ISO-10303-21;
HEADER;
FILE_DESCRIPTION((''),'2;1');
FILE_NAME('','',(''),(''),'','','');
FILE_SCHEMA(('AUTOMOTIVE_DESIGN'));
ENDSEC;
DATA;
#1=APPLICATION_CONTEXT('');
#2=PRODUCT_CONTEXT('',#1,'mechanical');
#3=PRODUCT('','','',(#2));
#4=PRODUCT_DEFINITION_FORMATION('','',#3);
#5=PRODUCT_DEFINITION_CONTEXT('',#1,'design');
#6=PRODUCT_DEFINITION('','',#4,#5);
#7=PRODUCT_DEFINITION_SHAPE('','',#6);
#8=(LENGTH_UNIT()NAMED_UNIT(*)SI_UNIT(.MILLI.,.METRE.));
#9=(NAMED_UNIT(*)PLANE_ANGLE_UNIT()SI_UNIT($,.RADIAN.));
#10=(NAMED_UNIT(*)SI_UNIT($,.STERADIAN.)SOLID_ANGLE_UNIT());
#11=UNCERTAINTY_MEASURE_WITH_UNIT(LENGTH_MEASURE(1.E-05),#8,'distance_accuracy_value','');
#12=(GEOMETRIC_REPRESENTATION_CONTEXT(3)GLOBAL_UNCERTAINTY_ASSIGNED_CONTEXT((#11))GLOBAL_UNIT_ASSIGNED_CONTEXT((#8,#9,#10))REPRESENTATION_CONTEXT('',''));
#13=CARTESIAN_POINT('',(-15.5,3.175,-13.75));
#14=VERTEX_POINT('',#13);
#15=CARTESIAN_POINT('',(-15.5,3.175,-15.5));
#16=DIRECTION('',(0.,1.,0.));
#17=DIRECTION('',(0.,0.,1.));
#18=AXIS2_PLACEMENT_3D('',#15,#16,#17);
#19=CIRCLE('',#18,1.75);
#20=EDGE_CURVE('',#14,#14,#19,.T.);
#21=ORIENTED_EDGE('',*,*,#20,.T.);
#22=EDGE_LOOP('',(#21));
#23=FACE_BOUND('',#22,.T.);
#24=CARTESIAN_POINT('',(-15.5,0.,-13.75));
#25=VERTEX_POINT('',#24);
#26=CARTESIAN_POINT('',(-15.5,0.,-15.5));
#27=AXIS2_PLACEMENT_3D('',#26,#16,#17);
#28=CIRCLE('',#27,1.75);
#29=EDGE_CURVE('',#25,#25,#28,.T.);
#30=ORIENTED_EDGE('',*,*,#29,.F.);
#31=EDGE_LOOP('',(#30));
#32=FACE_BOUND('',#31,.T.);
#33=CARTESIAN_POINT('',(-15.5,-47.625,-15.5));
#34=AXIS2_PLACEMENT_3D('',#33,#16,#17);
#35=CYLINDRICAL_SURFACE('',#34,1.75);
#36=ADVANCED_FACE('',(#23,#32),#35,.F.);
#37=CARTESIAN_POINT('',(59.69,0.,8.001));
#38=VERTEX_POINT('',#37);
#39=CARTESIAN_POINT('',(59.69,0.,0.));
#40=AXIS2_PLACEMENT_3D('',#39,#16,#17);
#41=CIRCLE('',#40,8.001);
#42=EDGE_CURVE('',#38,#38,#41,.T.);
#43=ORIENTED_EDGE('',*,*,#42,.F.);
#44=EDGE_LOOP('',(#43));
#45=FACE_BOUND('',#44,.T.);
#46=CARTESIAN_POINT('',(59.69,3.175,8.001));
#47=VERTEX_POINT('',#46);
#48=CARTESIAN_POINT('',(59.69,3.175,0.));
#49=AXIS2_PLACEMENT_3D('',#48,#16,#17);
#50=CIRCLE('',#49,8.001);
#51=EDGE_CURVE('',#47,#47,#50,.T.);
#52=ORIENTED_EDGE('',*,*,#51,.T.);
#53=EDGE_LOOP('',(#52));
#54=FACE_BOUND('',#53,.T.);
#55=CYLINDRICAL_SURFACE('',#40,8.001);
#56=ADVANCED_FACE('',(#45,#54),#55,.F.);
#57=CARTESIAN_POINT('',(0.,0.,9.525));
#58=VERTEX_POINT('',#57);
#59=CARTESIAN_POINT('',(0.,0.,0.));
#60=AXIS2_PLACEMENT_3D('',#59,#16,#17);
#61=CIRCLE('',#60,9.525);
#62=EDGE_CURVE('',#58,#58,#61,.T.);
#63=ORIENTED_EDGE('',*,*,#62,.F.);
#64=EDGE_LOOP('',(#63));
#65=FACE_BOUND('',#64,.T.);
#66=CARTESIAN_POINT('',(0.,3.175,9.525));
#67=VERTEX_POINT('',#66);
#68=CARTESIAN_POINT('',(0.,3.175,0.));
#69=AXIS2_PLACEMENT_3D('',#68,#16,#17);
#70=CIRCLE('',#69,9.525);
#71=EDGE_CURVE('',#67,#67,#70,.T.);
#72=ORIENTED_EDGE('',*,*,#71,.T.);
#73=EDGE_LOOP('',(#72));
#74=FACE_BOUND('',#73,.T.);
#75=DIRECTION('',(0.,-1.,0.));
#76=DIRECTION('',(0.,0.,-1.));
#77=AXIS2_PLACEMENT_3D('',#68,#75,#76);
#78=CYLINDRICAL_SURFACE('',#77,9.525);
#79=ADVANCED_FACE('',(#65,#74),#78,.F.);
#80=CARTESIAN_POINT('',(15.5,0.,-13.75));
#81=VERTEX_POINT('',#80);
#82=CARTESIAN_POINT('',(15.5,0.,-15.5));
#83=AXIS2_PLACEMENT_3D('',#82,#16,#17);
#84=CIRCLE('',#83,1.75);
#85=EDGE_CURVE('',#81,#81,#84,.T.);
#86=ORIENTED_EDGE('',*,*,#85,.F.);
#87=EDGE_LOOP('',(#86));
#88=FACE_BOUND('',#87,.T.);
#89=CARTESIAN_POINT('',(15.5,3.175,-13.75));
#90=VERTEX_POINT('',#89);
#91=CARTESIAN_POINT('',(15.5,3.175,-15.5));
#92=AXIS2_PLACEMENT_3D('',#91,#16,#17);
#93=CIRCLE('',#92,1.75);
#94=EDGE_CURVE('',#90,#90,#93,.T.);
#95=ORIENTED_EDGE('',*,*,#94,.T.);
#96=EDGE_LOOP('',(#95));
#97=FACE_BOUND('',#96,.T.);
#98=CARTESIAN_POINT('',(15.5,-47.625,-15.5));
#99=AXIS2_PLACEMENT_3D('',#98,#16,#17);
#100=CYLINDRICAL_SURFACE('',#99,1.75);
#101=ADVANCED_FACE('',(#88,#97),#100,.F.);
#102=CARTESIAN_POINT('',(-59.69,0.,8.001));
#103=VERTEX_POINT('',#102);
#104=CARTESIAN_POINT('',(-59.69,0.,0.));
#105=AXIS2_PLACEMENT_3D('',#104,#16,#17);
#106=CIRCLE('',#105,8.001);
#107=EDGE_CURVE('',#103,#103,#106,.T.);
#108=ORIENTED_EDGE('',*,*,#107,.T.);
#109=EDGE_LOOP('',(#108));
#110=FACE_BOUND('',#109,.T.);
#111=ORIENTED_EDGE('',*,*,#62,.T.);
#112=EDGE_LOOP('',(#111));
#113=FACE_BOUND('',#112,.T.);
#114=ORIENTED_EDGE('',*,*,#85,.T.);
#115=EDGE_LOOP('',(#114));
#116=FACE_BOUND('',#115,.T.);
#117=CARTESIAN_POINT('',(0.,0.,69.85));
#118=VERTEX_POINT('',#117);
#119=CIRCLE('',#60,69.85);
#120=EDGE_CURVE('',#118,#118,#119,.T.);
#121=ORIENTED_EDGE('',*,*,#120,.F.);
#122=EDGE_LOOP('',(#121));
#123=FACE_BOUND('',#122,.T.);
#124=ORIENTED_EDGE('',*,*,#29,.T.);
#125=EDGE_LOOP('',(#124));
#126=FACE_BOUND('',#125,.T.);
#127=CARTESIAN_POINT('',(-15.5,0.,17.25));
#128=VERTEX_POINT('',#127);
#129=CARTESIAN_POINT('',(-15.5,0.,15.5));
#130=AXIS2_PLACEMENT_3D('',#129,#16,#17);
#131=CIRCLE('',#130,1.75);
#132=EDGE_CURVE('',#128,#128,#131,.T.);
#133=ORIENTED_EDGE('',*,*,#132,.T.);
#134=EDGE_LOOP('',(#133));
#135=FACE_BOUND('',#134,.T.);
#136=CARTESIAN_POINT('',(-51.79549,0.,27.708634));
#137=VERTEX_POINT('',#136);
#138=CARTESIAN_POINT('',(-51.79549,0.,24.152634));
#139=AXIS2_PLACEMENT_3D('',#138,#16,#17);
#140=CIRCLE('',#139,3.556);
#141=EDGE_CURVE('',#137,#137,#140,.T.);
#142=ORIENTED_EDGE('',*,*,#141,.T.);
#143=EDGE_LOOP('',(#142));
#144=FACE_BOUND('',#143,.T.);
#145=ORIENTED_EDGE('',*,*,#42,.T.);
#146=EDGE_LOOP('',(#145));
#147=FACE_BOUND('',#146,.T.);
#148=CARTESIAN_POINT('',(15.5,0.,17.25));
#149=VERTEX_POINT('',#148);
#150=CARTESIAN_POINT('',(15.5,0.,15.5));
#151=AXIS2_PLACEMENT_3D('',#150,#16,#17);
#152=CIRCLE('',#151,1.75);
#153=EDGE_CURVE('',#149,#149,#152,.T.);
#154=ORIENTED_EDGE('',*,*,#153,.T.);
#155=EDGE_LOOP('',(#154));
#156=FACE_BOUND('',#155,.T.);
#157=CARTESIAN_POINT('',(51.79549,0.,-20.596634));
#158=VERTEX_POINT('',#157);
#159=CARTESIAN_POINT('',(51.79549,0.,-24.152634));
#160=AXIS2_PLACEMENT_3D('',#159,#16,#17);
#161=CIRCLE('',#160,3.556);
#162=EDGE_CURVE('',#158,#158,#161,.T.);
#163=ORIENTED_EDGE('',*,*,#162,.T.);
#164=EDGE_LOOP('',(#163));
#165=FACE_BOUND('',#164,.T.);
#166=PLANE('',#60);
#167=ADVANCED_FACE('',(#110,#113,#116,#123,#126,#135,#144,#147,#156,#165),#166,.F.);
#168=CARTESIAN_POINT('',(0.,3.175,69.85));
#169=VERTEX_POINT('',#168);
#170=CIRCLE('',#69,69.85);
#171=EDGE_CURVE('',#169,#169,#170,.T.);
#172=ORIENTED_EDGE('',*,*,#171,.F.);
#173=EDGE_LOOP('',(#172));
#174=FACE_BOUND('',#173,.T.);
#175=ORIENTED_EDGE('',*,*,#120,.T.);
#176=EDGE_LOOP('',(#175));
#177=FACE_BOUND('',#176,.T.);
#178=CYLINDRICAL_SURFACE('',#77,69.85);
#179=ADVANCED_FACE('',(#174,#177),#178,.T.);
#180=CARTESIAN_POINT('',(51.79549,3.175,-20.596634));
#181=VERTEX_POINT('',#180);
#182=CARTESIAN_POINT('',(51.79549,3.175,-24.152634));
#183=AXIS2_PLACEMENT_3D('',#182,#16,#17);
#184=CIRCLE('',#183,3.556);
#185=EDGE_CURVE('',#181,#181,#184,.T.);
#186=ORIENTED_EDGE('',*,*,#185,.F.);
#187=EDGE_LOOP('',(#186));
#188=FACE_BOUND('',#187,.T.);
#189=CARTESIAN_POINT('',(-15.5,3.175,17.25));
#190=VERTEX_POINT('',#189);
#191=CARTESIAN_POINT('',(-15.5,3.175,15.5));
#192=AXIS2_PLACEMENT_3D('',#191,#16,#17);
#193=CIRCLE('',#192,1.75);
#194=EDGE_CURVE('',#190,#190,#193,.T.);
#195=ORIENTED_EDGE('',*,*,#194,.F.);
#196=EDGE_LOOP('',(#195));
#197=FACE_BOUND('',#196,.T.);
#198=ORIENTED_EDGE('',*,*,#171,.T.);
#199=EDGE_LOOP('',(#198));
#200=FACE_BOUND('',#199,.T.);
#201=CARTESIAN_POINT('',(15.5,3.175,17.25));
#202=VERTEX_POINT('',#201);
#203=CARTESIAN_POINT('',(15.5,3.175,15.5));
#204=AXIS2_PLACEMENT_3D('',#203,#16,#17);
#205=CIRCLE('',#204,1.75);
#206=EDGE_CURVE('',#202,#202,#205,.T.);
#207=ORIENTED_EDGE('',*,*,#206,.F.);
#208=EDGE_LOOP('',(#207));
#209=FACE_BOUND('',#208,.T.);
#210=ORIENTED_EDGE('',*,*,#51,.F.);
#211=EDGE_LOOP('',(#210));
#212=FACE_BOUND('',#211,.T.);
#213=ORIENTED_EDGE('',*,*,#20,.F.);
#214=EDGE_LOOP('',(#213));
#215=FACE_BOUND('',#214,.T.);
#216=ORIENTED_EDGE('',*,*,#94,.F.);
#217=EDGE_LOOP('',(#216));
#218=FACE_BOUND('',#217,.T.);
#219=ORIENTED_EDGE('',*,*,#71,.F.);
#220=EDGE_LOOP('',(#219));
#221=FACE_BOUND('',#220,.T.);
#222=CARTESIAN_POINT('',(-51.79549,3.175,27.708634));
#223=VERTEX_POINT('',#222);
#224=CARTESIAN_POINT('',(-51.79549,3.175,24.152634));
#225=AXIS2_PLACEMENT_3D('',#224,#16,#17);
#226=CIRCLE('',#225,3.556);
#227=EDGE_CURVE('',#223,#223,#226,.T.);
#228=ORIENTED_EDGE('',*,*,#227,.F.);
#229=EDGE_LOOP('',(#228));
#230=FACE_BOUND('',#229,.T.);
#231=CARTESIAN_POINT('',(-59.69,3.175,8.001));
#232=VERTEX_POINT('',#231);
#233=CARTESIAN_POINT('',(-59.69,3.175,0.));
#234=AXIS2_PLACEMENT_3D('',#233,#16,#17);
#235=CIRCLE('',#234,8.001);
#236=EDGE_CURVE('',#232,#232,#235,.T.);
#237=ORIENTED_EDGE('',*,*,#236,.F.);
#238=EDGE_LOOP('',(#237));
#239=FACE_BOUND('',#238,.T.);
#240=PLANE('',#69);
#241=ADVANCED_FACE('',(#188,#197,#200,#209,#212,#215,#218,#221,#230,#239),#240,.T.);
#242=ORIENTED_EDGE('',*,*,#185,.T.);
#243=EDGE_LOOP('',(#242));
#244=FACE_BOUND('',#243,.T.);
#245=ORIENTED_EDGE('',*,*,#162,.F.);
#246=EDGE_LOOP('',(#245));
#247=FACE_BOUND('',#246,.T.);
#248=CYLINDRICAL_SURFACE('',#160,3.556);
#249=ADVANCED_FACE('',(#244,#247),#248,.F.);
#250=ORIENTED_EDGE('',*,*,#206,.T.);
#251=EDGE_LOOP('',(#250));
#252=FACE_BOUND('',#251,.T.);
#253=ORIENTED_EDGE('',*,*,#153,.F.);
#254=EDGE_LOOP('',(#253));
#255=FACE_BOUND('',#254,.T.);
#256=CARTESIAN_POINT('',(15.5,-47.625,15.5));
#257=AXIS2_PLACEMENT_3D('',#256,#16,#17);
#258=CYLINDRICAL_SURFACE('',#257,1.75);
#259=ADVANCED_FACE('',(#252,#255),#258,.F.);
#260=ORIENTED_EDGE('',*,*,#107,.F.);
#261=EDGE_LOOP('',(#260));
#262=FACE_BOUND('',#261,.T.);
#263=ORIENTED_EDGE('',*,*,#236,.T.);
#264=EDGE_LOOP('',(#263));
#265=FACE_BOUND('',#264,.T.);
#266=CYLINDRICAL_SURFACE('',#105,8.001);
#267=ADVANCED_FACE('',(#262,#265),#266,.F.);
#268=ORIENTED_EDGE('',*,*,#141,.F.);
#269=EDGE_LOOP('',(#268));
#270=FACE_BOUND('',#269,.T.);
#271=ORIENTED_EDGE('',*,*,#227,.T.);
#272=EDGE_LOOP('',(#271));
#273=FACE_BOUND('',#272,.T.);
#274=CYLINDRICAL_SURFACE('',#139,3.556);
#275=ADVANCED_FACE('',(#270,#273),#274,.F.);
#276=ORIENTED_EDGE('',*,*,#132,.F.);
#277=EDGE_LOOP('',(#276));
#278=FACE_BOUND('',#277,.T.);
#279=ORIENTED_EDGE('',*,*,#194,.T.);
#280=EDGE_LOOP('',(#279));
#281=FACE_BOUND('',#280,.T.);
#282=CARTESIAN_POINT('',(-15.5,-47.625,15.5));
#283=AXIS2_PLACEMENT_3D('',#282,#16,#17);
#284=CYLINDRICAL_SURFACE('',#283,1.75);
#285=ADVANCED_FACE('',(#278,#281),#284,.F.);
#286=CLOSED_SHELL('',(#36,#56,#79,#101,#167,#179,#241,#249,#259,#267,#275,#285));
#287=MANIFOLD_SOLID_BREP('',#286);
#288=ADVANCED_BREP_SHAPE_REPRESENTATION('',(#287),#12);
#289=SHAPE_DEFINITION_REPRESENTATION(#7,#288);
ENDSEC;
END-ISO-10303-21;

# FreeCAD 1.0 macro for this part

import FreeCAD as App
import Part
import Sketcher

V = App.Vector
Q = App.Units.Quantity

doc = App.newDocument("Part")
body = doc.addObject("PartDesign::Body", "Body")

sketch1 = body.newObject("Sketcher::SketchObject", "Sketch")
sketch1.AttachmentSupport = (doc.getObject("XZ_Plane"), [""])
sketch1.MapMode = "FlatFace"
sketch1.addGeometry(Part.Circle(V(0, 0, 0), V(0, 0, 1), 70), False)
sketch1.addGeometry(Part.Circle(V(0, 0, 0), V(0, 0, 1), 10), False)
sketch1.addConstraint(Sketcher.Constraint("Coincident", 0, 3, -1, 1))
sketch1.addConstraint(Sketcher.Constraint("Coincident", 1, 3, -1, 1))
sketch1.addConstraint(Sketcher.Constraint("Diameter", 0, Q("5.5 in")))
sketch1.addConstraint(Sketcher.Constraint("Diameter", 1, Q("0.75 in")))
pad1 = body.newObject("PartDesign::Pad", "Pad")
pad1.Profile = sketch1
pad1.Length = Q("0.125 in")
pad1.Reversed = True

sketch2 = body.newObject("Sketcher::SketchObject", "Sketch001")
sketch2.AttachmentSupport = (doc.getObject("XZ_Plane"), [""])
sketch2.MapMode = "FlatFace"
sketch2.AttachmentOffset = App.Placement(V(0, 0, -0.125 * 25.4), App.Rotation())
sketch2.addGeometry(Part.Circle(V(-59.7, 0, 0), V(0, 0, 1), 8), False)
sketch2.addGeometry(Part.Circle(V(59.7, 0, 0), V(0, 0, 1), 8), False)
sketch2.addGeometry(Part.Circle(V(-51.8, 24.2, 0), V(0, 0, 1), 3.6), False)
sketch2.addGeometry(Part.Circle(V(51.8, -24.2, 0), V(0, 0, 1), 3.6), False)
sketch2.addConstraint(Sketcher.Constraint("Equal", 0, 1))
sketch2.addConstraint(Sketcher.Constraint("Equal", 2, 3))
sketch2.addConstraint(Sketcher.Constraint("Symmetric", 0, 3, 1, 3, -1, 1))
sketch2.addConstraint(Sketcher.Constraint("Symmetric", 2, 3, 3, 3, -1, 1))
sketch2.addConstraint(Sketcher.Constraint("PointOnObject", 0, 3, -1))
sketch2.addConstraint(Sketcher.Constraint("Diameter", 0, Q("0.63 in")))
sketch2.addConstraint(Sketcher.Constraint("Diameter", 2, Q("0.28 in")))
sketch2.addConstraint(Sketcher.Constraint("DistanceX", 0, 3, 1, 3, Q("4.7 in")))
sketch2.addConstraint(Sketcher.Constraint("DistanceX", 2, 3, -1, 1, Q("51.79549 mm")))
sketch2.addConstraint(Sketcher.Constraint("DistanceY", -1, 1, 2, 3, Q("24.152634 mm")))
pocket1 = body.newObject("PartDesign::Pocket", "Pocket")
pocket1.Profile = sketch2
pocket1.Length = Q("0.125 in")
pocket1.Reversed = True

sketch3 = body.newObject("Sketcher::SketchObject", "Sketch002")
sketch3.AttachmentSupport = (doc.getObject("XZ_Plane"), [""])
sketch3.MapMode = "FlatFace"
sketch3.AttachmentOffset = App.Placement(V(0, 0, -0.125 * 25.4), App.Rotation())
sketch3.addGeometry(Part.Circle(V(15.5, -15.5, 0), V(0, 0, 1), 1.8), False)
sketch3.addGeometry(Part.Circle(V(15.5, 15.5, 0), V(0, 0, 1), 1.8), False)
sketch3.addGeometry(Part.Circle(V(-15.5, 15.5, 0), V(0, 0, 1), 1.8), False)
sketch3.addGeometry(Part.Circle(V(-15.5, -15.5, 0), V(0, 0, 1), 1.8), False)
sketch3.addConstraint(Sketcher.Constraint("Equal", 0, 1))
sketch3.addConstraint(Sketcher.Constraint("Equal", 1, 2))
sketch3.addConstraint(Sketcher.Constraint("Equal", 2, 3))
sketch3.addConstraint(Sketcher.Constraint("Symmetric", 0, 3, 2, 3, -1, 1))
sketch3.addConstraint(Sketcher.Constraint("Symmetric", 1, 3, 3, 3, -1, 1))
sketch3.addConstraint(Sketcher.Constraint("Symmetric", 1, 3, 2, 3, -2))
sketch3.addConstraint(Sketcher.Constraint("Diameter", 0, Q("3.5 mm")))
sketch3.addConstraint(Sketcher.Constraint("DistanceX", -1, 1, 0, 3, Q("15.5 mm")))
sketch3.addConstraint(Sketcher.Constraint("DistanceY", 0, 3, -1, 1, Q("15.5 mm")))
pocket2 = body.newObject("PartDesign::Pocket", "Pocket001")
pocket2.Profile = sketch3
pocket2.Length = Q("2 in")
pocket2.Reversed = True

doc.recompute()
